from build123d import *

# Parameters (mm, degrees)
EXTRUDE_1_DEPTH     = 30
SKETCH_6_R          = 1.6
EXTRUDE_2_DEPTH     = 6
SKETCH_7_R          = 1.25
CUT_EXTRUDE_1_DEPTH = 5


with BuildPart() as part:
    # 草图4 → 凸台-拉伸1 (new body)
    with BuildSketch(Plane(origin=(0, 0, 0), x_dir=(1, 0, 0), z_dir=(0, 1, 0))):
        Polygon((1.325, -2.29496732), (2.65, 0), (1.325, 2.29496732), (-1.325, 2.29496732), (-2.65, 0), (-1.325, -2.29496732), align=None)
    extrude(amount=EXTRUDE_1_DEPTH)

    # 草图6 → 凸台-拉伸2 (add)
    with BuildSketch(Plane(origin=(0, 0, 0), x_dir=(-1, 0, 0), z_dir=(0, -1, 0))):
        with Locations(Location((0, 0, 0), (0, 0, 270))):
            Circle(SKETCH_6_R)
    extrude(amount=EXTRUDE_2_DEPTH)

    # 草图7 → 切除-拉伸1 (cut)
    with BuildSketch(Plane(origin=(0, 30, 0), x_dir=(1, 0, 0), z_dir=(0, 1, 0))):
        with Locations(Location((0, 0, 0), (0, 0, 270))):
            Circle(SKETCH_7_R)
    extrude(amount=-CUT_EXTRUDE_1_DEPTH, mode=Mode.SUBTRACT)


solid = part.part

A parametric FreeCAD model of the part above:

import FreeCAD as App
import Part
import Sketcher

V = App.Vector
Q = App.Units.Quantity

doc = App.newDocument("Part")
body = doc.addObject("PartDesign::Body", "Body")

sketch1 = doc.addObject("Sketcher::SketchObject", "Sketch")
body.addObject(sketch1)
sketch1.AttachmentSupport = (doc.XZ_Plane, [""])
sketch1.MapMode = "FlatFace"
sketch1.addGeometry([
    Part.LineSegment(V(1.3, 2.3, 0), V(2.6, 0, 0)),
    Part.LineSegment(V(2.6, 0, 0), V(1.3, -2.3, 0)),
    Part.LineSegment(V(1.3, -2.3, 0), V(-1.3, -2.3, 0)),
    Part.LineSegment(V(-1.3, -2.3, 0), V(-2.6, 0, 0)),
    Part.LineSegment(V(-2.6, 0, 0), V(-1.3, 2.3, 0)),
    Part.LineSegment(V(-1.3, 2.3, 0), V(1.3, 2.3, 0)),
], False)
sketch1.addConstraint([
    Sketcher.Constraint("Coincident", 0, 2, 1, 1),
    Sketcher.Constraint("Coincident", 1, 2, 2, 1),
    Sketcher.Constraint("Coincident", 2, 2, 3, 1),
    Sketcher.Constraint("Coincident", 3, 2, 4, 1),
    Sketcher.Constraint("Coincident", 4, 2, 5, 1),
    Sketcher.Constraint("Coincident", 5, 2, 0, 1),
    Sketcher.Constraint("Horizontal", 2),
    Sketcher.Constraint("Horizontal", 5),
    Sketcher.Constraint("Symmetric", 0, 2, 3, 2, -1, 1),
    Sketcher.Constraint("Symmetric", 1, 2, 4, 2, -1, 1),
    Sketcher.Constraint("PointOnObject", 0, 2, -1),
    Sketcher.Constraint("Parallel", 0, 3),
    Sketcher.Constraint("Vertical", 2, 2, 4, 2),
    Sketcher.Constraint("Angle", 0, Q("-60 deg")),
    Sketcher.Constraint("DistanceX", 2, 2, 2, 1, Q("2.65 mm")),
    Sketcher.Constraint("DistanceX", 3, 2, 0, 2, Q("5.3 mm")),
])
pad1 = doc.addObject("PartDesign::Pad", "Pad")
body.addObject(pad1)
pad1.Profile = sketch1
pad1.Length = 30
pad1.Reversed = True

sketch2 = doc.addObject("Sketcher::SketchObject", "Sketch001")
body.addObject(sketch2)
sketch2.AttachmentSupport = (doc.XZ_Plane, [""])
sketch2.MapMode = "FlatFace"
sketch2.addGeometry(Part.Circle(V(0, 0, 0), V(0, 0, 1), 1.6), False)
sketch2.addConstraint([
    Sketcher.Constraint("Coincident", 0, 3, -1, 1),
    Sketcher.Constraint("Diameter", 0, Q("3.2 mm")),
])
pad2 = doc.addObject("PartDesign::Pad", "Pad001")
body.addObject(pad2)
pad2.Profile = sketch2
pad2.Length = 6

sketch3 = doc.addObject("Sketcher::SketchObject", "Sketch002")
body.addObject(sketch3)
sketch3.AttachmentSupport = (doc.XZ_Plane, [""])
sketch3.MapMode = "FlatFace"
sketch3.AttachmentOffset = App.Placement(V(0, 0, -30), App.Rotation())
sketch3.addGeometry(Part.Circle(V(0, 0, 0), V(0, 0, 1), 1.2), False)
sketch3.addConstraint([
    Sketcher.Constraint("Coincident", 0, 3, -1, 1),
    Sketcher.Constraint("Diameter", 0, Q("2.5 mm")),
])
pocket1 = doc.addObject("PartDesign::Pocket", "Pocket")
body.addObject(pocket1)
pocket1.Profile = sketch3
pocket1.Length = 5
pocket1.Reversed = True

doc.recompute()
